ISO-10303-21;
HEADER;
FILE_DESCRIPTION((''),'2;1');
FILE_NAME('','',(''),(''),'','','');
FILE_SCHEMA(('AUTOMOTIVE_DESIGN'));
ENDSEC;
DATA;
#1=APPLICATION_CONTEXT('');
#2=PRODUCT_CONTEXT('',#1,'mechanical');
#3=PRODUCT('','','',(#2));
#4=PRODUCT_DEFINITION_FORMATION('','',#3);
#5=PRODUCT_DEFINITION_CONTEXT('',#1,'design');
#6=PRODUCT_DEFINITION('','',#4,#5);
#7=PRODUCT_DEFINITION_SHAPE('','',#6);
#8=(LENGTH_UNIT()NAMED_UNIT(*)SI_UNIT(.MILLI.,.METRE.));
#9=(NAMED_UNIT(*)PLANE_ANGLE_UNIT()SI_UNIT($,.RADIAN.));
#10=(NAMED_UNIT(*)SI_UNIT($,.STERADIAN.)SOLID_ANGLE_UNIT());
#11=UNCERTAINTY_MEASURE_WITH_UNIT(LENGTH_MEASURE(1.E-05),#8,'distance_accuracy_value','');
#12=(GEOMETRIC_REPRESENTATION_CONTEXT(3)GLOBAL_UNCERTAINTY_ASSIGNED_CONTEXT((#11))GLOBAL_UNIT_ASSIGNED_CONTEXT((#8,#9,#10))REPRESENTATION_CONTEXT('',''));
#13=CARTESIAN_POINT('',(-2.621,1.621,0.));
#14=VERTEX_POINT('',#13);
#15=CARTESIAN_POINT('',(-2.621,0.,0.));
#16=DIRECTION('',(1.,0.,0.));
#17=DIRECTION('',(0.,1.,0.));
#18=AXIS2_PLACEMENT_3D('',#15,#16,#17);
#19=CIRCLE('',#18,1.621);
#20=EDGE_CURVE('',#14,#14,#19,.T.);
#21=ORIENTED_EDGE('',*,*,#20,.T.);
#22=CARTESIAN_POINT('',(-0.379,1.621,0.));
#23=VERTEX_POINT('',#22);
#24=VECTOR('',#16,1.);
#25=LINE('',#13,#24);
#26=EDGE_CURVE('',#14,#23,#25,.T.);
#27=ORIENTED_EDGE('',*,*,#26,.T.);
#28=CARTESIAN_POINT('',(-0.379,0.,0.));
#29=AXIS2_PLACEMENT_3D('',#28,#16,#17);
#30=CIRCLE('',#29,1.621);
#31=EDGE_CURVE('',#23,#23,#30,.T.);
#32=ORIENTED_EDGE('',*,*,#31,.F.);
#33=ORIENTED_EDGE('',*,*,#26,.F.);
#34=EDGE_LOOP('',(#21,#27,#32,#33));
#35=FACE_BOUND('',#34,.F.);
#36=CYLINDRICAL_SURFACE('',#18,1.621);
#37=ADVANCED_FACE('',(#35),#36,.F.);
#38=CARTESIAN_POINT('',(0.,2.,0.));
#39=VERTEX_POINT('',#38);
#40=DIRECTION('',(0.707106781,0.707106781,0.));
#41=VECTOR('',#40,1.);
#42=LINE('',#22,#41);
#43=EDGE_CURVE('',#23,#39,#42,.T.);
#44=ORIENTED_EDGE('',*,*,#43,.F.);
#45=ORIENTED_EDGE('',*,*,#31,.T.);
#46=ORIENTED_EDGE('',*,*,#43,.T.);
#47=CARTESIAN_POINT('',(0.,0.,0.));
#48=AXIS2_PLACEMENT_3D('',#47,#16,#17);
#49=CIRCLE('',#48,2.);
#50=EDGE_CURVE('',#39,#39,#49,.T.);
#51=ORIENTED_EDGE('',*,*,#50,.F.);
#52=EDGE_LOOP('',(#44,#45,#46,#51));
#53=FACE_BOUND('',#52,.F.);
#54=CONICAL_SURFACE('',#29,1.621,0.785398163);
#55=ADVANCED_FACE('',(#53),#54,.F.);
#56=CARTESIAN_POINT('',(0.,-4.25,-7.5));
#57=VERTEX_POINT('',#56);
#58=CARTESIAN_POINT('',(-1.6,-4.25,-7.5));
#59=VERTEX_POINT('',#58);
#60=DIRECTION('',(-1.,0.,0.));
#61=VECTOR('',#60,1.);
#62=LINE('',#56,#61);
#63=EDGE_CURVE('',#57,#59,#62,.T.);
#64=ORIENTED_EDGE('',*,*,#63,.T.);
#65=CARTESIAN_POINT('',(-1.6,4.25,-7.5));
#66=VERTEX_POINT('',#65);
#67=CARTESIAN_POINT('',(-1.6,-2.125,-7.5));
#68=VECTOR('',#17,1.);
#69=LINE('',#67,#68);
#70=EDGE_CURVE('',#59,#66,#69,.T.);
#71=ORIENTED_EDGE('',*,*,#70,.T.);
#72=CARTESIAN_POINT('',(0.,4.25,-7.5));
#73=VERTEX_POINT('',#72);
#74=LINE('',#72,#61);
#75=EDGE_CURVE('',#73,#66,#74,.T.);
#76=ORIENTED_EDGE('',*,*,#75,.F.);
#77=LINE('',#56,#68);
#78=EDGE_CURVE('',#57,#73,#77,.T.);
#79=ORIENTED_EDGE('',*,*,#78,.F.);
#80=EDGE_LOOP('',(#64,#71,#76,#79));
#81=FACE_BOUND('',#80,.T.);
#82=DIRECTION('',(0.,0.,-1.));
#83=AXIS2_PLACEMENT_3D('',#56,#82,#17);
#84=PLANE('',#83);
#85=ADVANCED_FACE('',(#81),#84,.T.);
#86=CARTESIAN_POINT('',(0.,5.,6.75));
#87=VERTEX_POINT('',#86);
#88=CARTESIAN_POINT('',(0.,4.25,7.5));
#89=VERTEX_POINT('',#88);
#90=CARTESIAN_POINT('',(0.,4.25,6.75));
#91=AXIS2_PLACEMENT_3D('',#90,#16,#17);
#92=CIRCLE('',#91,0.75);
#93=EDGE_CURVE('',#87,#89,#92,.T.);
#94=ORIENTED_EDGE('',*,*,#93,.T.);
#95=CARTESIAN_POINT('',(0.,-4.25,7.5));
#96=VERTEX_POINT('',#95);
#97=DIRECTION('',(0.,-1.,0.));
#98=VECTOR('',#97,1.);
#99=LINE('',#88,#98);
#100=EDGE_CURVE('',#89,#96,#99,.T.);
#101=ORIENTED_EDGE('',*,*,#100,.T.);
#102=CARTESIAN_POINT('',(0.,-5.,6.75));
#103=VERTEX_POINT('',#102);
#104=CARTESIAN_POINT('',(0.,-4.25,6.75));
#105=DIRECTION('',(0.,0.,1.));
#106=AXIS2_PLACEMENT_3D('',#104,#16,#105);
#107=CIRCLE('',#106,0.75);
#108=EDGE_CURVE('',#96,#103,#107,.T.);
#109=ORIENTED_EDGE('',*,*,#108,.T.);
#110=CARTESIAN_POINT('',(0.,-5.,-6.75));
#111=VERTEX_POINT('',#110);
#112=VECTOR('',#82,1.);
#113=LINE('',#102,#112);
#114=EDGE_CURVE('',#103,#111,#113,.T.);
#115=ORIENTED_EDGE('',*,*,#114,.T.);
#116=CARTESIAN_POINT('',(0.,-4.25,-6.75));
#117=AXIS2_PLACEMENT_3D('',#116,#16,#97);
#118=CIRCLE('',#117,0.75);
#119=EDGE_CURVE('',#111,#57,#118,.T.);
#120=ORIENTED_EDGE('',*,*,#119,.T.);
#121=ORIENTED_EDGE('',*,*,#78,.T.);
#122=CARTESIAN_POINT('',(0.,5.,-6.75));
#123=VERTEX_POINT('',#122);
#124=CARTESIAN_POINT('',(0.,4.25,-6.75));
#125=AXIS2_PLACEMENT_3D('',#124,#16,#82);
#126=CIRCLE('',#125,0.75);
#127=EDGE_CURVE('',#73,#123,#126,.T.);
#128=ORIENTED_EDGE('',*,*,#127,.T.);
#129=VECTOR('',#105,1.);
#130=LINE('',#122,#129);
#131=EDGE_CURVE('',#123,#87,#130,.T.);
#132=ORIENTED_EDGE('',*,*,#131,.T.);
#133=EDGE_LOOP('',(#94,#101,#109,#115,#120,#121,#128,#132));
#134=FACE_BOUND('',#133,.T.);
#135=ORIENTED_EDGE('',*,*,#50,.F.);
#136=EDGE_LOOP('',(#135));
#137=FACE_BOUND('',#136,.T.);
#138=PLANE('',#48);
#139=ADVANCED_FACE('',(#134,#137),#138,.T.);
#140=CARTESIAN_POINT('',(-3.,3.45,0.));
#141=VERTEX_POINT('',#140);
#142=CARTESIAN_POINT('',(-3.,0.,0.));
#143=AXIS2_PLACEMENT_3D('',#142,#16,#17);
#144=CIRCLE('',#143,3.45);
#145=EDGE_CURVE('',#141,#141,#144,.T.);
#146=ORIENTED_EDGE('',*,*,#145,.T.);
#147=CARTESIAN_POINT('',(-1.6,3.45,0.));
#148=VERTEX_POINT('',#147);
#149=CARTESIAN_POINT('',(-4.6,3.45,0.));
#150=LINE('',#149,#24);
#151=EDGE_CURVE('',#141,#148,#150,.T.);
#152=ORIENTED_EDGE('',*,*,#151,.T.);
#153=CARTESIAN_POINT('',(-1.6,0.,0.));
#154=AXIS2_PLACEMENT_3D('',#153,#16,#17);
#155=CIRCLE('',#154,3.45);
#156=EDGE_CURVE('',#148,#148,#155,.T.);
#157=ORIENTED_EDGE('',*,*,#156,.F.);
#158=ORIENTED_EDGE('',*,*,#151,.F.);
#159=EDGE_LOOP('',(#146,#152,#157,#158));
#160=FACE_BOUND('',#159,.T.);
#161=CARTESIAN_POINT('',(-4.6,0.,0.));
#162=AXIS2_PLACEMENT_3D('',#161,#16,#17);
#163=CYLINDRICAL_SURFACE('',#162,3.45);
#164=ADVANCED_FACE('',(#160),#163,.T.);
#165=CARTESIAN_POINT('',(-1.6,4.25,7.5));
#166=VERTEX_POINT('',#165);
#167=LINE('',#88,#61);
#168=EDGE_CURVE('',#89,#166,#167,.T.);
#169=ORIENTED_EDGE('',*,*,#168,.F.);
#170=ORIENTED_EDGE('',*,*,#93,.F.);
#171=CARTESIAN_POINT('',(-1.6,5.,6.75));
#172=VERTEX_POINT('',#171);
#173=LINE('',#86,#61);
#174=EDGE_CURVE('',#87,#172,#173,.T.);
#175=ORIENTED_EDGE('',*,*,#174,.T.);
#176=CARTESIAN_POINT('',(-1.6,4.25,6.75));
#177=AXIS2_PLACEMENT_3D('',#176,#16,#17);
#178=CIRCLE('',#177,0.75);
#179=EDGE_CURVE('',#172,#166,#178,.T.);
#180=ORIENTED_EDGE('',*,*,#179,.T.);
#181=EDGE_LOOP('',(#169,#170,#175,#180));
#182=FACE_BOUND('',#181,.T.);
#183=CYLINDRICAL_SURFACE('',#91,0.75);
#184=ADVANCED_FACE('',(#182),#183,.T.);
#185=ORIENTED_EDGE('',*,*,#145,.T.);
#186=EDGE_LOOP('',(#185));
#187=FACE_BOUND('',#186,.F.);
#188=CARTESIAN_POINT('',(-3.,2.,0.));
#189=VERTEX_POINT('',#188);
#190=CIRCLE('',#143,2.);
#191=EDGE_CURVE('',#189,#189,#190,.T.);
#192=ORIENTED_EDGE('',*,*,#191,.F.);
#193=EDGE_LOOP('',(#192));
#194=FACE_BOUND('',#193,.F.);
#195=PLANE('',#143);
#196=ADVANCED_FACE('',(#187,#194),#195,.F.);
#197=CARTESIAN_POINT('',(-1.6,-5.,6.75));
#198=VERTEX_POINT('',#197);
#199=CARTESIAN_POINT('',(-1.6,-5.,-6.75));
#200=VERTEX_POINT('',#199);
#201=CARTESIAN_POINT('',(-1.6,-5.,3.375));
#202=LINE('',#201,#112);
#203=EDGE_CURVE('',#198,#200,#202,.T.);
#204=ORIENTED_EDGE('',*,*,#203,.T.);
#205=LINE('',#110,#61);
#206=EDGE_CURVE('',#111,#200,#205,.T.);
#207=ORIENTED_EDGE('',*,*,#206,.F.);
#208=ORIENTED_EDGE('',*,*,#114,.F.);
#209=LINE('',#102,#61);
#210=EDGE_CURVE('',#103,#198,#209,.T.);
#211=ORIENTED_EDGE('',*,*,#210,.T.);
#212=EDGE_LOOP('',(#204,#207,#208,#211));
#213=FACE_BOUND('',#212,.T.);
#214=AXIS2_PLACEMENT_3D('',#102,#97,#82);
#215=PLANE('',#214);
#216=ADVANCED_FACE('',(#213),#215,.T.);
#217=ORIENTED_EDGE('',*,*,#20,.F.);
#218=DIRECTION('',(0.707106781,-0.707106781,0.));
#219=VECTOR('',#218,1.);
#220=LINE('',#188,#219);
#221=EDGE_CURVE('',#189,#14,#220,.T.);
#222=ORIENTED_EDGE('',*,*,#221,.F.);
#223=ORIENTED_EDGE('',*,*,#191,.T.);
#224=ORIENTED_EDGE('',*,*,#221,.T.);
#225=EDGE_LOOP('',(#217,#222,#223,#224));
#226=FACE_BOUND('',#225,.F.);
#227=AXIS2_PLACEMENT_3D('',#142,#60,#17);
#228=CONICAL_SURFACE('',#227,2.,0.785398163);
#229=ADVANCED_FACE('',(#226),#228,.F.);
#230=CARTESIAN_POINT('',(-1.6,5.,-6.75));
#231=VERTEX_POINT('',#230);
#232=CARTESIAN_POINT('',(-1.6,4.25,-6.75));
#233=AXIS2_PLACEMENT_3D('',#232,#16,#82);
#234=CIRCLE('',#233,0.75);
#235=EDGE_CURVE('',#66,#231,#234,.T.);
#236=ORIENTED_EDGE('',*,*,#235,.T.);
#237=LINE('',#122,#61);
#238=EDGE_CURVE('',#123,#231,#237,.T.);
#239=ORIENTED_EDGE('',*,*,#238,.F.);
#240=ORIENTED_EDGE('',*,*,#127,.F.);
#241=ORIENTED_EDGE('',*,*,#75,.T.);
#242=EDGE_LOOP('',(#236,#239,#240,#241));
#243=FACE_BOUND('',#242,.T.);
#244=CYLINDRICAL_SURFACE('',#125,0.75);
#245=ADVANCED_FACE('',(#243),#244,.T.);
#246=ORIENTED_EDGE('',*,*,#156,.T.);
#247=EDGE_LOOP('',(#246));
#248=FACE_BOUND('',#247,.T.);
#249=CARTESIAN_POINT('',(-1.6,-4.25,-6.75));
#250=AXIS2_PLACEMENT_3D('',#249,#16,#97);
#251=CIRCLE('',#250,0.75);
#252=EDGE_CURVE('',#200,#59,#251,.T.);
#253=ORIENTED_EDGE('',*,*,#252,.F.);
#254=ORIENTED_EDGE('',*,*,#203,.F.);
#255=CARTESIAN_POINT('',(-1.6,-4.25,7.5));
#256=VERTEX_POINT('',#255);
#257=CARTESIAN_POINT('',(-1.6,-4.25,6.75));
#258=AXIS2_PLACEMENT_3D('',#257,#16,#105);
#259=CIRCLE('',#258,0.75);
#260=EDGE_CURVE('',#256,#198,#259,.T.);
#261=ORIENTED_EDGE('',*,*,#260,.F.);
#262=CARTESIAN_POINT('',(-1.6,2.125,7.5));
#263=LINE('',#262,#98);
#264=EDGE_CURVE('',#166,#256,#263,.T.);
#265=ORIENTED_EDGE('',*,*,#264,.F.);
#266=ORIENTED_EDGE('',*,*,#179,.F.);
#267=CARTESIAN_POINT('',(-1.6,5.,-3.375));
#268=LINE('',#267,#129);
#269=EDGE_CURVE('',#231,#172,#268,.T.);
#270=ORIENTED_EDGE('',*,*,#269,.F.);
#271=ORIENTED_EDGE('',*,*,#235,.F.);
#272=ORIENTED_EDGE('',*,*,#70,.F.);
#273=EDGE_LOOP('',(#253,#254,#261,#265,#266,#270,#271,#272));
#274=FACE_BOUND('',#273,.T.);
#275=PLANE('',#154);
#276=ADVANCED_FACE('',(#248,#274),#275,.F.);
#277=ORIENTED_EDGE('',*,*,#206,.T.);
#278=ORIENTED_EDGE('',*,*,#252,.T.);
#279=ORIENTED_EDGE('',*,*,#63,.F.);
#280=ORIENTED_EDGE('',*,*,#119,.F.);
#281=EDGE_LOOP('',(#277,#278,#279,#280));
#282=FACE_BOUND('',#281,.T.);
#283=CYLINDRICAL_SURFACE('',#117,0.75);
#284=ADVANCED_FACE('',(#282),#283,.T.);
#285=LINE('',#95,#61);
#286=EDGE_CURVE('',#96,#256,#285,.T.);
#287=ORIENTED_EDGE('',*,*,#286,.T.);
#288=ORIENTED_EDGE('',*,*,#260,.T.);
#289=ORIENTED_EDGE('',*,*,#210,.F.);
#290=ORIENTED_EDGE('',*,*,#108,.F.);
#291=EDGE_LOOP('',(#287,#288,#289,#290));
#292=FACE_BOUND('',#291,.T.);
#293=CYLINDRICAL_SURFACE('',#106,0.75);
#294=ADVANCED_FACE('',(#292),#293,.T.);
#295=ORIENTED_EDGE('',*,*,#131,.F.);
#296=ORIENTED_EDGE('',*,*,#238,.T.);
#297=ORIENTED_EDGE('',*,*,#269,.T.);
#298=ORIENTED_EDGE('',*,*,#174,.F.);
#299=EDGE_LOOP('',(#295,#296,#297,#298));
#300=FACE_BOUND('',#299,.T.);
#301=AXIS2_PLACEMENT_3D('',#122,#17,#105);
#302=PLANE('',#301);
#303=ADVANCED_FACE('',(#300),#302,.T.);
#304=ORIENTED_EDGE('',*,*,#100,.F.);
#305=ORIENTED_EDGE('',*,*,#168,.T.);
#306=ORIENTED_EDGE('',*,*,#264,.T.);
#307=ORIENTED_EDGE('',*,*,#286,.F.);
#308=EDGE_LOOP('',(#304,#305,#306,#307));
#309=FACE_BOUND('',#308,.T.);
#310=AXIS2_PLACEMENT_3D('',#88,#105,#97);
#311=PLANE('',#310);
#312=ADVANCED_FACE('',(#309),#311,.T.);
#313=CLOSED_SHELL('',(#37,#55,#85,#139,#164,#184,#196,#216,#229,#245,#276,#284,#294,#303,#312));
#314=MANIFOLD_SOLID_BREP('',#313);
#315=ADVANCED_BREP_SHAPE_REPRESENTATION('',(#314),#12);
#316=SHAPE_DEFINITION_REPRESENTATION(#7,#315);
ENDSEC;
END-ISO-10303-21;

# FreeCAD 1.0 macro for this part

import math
import FreeCAD as App
import Part
import Sketcher

V = App.Vector
Q = App.Units.Quantity

doc = App.newDocument("Part")
body = doc.addObject("PartDesign::Body", "Body")

# Sketch on YZ plane
sketch1 = doc.addObject("Sketcher::SketchObject", "Sketch")
body.addObject(sketch1)
sketch1.AttachmentSupport = (doc.YZ_Plane, [""])
sketch1.MapMode = "FlatFace"
sketch1.addGeometry([
    Part.ArcOfCircle(Part.Circle(V(4.2, 6.8, 0), V(0, 0, 1), 0.8), math.radians(0), math.radians(90)),  # 0
    Part.LineSegment(V(4.2, 7.5, 0), V(-4.2, 7.5, 0)),  # 1
    Part.ArcOfCircle(Part.Circle(V(-4.2, 6.8, 0), V(0, 0, 1), 0.8), math.radians(90), math.radians(180)),  # 2
    Part.LineSegment(V(-5, 6.8, 0), V(-5, -6.8, 0)),  # 3
    Part.ArcOfCircle(Part.Circle(V(-4.2, -6.8, 0), V(0, 0, 1), 0.8), math.radians(180), math.radians(270)),  # 4
    Part.LineSegment(V(-4.2, -7.5, 0), V(4.2, -7.5, 0)),  # 5
    Part.ArcOfCircle(Part.Circle(V(4.2, -6.8, 0), V(0, 0, 1), 0.8), math.radians(-90), math.radians(0)),  # 6
    Part.LineSegment(V(5, -6.8, 0), V(5, 6.8, 0)),  # 7
], False)
sketch1.addConstraint([
    Sketcher.Constraint("Tangent", 0, 2, 1, 1),
    Sketcher.Constraint("Tangent", 1, 2, 2, 1),
    Sketcher.Constraint("Tangent", 2, 2, 3, 1),
    Sketcher.Constraint("Tangent", 3, 2, 4, 1),
    Sketcher.Constraint("Tangent", 4, 2, 5, 1),
    Sketcher.Constraint("Tangent", 5, 2, 6, 1),
    Sketcher.Constraint("Tangent", 6, 2, 7, 1),
    Sketcher.Constraint("Tangent", 7, 2, 0, 1),
    Sketcher.Constraint("Horizontal", 1),
    Sketcher.Constraint("Vertical", 3),
    Sketcher.Constraint("Horizontal", 5),
    Sketcher.Constraint("Vertical", 7),
    Sketcher.Constraint("Equal", 0, 2),
    Sketcher.Constraint("Equal", 2, 4),
    Sketcher.Constraint("Equal", 4, 6),
    Sketcher.Constraint("Symmetric", 0, 3, 4, 3, -1, 1),
    Sketcher.Constraint("Radius", 0, Q("0.75 mm")),
    Sketcher.Constraint("DistanceX", 1, 2, 1, 1, Q("8.5 mm")),
    Sketcher.Constraint("DistanceY", 3, 2, 3, 1, Q("13.5 mm")),
])
pad1 = doc.addObject("PartDesign::Pad", "Pad")
body.addObject(pad1)
pad1.Profile = sketch1
pad1.Length = 3
pad1.Reversed = True

# Sketch on XY plane
sketch2 = doc.addObject("Sketcher::SketchObject", "Sketch001")
body.addObject(sketch2)
sketch2.AttachmentSupport = (doc.XY_Plane, [""])
sketch2.MapMode = "FlatFace"
sketch2.addGeometry([
    Part.LineSegment(V(-4.6, 13.4, 0), V(-4.6, 3.5, 0)),
    Part.LineSegment(V(-4.6, 3.5, 0), V(-1.6, 3.5, 0)),
    Part.LineSegment(V(-1.6, 3.5, 0), V(-1.6, 13.4, 0)),
    Part.LineSegment(V(-1.6, 13.4, 0), V(-4.6, 13.4, 0)),
], False)
sketch2.addConstraint([
    Sketcher.Constraint("Coincident", 0, 2, 1, 1),
    Sketcher.Constraint("Coincident", 1, 2, 2, 1),
    Sketcher.Constraint("Coincident", 2, 2, 3, 1),
    Sketcher.Constraint("Coincident", 3, 2, 0, 1),
    Sketcher.Constraint("Vertical", 0),
    Sketcher.Constraint("Horizontal", 1),
    Sketcher.Constraint("Vertical", 2),
    Sketcher.Constraint("Horizontal", 3),
    Sketcher.Constraint("DistanceX", 1, 1, 1, 2, Q("3 mm")),
    Sketcher.Constraint("DistanceY", 0, 2, 0, 1, Q("10 mm")),
    Sketcher.Constraint("DistanceX", 0, 2, -1, 1, Q("4.6 mm")),
    Sketcher.Constraint("DistanceY", -1, 1, 0, 2, Q("3.45 mm")),
])
groove = doc.addObject("PartDesign::Groove", "Groove")
body.addObject(groove)
groove.Profile = sketch2
groove.ReferenceAxis = (sketch2, ["H_Axis"])
groove.Angle = 360

# Sketch on XY plane
sketch3 = doc.addObject("Sketcher::SketchObject", "Sketch002")
body.addObject(sketch3)
sketch3.AttachmentSupport = (doc.XY_Plane, [""])
sketch3.MapMode = "FlatFace"
sketch3.addGeometry([
    Part.LineSegment(V(-3, 0, 0), V(0, 0, 0)),  # 0
    Part.LineSegment(V(0, 0, 0), V(0, 2, 0)),  # 1
    Part.LineSegment(V(0, 2, 0), V(-0.4, 1.6, 0)),  # 2
    Part.LineSegment(V(-0.4, 1.6, 0), V(-2.6, 1.6, 0)),  # 3
    Part.LineSegment(V(-2.6, 1.6, 0), V(-3, 2, 0)),  # 4
    Part.LineSegment(V(-3, 2, 0), V(-3, 0, 0)),  # 5
], False)
sketch3.addConstraint([
    Sketcher.Constraint("Coincident", 0, 2, 1, 1),
    Sketcher.Constraint("Coincident", 1, 2, 2, 1),
    Sketcher.Constraint("Coincident", 2, 2, 3, 1),
    Sketcher.Constraint("Coincident", 3, 2, 4, 1),
    Sketcher.Constraint("Coincident", 4, 2, 5, 1),
    Sketcher.Constraint("Coincident", 5, 2, 0, 1),
    Sketcher.Constraint("Horizontal", 0),
    Sketcher.Constraint("Vertical", 1),
    Sketcher.Constraint("Horizontal", 3),
    Sketcher.Constraint("Vertical", 5),
    Sketcher.Constraint("Coincident", 0, 2, -1, 1),
    Sketcher.Constraint("Perpendicular", 2, 4),
    Sketcher.Constraint("Horizontal", 1, 2, 4, 2),
    Sketcher.Constraint("Equal", 2, 4),
    Sketcher.Constraint("DistanceX", 0, 1, 0, 2, Q("3 mm")),
    Sketcher.Constraint("DistanceY", 1, 1, 1, 2, Q("2 mm")),
    Sketcher.Constraint("DistanceX", 3, 2, 3, 1, Q("2.242 mm")),
])
groove2 = doc.addObject("PartDesign::Groove", "Groove001")
body.addObject(groove2)
groove2.Profile = sketch3
groove2.ReferenceAxis = (sketch3, ["H_Axis"])
groove2.Angle = 360

doc.recompute()
